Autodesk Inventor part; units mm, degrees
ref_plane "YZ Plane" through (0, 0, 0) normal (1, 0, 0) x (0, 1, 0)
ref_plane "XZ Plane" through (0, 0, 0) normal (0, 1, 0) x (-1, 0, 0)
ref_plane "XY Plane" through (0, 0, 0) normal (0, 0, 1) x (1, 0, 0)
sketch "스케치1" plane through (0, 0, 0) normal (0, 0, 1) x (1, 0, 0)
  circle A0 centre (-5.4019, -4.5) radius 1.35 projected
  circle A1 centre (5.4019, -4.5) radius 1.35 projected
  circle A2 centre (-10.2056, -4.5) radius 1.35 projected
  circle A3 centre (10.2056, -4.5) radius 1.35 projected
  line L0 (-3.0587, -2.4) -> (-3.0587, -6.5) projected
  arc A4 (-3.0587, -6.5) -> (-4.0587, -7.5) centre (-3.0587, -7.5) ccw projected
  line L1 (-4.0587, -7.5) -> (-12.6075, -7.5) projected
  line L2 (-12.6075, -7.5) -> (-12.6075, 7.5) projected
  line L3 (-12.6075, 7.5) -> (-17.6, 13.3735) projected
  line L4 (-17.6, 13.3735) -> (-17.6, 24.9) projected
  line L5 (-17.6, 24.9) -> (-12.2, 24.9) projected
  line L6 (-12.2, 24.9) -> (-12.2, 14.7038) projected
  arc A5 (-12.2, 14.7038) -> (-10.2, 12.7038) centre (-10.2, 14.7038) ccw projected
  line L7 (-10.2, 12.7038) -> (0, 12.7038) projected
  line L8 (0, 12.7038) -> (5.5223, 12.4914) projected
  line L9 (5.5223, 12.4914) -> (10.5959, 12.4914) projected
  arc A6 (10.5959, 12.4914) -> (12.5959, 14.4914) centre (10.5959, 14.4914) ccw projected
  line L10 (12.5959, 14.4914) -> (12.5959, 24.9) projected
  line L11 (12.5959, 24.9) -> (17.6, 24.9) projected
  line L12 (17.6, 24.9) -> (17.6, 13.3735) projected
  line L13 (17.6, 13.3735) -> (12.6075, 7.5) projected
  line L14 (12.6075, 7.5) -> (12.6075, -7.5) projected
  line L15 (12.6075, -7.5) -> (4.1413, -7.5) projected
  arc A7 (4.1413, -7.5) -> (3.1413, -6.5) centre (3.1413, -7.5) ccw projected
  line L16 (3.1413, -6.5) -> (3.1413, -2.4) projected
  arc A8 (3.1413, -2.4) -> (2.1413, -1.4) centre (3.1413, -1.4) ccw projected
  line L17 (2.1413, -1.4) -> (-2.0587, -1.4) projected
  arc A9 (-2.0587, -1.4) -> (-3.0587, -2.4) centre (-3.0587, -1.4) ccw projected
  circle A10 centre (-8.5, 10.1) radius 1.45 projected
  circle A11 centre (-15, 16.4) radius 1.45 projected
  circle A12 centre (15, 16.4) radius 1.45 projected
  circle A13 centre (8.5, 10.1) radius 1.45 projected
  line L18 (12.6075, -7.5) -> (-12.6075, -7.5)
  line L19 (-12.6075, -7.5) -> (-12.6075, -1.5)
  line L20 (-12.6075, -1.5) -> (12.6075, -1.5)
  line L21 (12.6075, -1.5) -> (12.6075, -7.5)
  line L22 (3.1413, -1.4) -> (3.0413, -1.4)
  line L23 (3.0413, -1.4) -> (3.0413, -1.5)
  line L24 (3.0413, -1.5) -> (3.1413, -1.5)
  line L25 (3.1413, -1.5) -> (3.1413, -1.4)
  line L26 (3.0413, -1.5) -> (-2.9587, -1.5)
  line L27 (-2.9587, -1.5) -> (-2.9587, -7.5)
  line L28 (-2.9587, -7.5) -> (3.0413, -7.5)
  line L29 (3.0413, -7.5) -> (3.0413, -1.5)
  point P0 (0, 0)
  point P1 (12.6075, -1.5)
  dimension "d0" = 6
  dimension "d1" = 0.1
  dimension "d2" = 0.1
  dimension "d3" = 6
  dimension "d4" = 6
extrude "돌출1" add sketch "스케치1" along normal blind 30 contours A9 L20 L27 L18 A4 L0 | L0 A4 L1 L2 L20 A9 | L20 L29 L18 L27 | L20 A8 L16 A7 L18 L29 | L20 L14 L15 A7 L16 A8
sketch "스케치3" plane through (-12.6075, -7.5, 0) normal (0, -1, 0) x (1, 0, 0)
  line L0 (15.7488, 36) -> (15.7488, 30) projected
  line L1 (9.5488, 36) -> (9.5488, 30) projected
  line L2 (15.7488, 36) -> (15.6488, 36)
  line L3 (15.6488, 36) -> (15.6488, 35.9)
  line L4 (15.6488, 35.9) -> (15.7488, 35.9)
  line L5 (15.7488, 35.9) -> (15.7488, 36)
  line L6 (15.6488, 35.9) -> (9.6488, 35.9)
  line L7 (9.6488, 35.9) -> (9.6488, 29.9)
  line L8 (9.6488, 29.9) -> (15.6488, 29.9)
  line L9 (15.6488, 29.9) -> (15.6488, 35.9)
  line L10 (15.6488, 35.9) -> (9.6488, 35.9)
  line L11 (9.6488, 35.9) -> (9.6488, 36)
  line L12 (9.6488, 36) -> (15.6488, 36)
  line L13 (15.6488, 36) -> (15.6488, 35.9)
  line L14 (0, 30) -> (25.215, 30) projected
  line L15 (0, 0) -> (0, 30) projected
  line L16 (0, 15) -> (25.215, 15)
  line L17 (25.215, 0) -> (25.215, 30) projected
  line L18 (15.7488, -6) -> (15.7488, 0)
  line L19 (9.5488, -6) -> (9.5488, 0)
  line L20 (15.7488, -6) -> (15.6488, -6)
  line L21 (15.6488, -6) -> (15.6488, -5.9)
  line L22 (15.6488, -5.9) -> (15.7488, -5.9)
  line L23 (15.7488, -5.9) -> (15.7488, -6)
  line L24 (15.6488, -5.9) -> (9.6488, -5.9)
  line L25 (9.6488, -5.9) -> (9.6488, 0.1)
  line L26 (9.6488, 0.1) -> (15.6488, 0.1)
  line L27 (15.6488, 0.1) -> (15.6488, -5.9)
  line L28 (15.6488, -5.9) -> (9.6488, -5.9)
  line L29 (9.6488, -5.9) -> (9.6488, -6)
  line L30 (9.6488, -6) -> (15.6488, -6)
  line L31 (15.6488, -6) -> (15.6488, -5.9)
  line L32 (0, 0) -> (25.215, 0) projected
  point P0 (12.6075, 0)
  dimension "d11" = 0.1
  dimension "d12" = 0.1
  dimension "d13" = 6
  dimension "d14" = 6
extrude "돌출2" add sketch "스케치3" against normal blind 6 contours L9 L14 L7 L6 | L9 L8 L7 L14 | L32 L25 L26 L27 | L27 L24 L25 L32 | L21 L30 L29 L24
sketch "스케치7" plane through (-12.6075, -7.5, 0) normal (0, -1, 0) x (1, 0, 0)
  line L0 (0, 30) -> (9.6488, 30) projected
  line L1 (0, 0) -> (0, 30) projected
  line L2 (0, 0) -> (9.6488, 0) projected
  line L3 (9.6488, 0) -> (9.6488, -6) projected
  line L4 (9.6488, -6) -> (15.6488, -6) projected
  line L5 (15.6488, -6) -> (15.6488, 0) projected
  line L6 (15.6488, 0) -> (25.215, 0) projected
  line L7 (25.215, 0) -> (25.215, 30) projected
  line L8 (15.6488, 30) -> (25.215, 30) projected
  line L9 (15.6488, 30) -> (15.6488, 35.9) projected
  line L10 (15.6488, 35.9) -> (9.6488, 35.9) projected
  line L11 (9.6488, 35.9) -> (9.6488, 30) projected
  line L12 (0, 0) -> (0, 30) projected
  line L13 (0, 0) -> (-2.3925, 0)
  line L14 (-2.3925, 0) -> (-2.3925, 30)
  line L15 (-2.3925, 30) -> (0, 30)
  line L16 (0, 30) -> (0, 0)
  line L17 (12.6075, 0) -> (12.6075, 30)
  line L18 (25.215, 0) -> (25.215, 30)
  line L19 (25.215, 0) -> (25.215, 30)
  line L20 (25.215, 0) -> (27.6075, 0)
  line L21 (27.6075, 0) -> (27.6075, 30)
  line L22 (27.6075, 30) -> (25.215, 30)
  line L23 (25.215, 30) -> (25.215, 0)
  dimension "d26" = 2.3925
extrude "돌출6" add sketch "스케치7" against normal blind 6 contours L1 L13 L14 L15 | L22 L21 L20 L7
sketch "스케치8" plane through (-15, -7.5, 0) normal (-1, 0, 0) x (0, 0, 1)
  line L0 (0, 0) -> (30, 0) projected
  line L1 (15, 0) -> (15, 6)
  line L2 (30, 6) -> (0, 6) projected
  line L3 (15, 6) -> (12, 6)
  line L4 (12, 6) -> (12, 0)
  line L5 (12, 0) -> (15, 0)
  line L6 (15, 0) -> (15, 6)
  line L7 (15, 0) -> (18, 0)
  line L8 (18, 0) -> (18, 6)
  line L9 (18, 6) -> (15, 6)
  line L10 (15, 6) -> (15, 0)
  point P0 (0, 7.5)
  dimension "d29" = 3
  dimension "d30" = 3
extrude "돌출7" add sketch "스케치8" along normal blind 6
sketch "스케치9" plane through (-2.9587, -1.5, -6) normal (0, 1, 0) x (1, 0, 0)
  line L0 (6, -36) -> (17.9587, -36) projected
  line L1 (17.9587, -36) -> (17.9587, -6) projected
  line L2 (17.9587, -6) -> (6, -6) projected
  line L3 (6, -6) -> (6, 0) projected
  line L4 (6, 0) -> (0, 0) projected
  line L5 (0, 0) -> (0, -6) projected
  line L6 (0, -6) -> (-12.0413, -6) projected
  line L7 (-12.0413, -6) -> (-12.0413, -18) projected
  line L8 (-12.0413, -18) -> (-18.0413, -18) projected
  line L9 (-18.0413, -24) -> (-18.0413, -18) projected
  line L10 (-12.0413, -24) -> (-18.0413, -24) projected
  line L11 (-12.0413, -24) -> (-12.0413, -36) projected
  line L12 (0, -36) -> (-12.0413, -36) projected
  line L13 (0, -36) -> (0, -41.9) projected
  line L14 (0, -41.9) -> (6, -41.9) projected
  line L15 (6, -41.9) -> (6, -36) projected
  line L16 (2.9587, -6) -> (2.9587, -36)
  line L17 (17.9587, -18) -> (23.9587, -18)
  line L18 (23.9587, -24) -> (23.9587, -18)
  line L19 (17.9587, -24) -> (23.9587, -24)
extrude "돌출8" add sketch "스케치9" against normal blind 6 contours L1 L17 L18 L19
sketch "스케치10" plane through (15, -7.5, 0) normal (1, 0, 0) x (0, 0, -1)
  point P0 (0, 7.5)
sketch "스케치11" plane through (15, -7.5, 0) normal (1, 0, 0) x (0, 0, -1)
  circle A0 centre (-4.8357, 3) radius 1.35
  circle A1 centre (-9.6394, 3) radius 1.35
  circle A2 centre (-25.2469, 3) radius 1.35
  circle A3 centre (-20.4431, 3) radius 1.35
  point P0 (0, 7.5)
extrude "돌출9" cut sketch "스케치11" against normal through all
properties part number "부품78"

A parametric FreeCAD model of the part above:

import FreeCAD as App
import Part
import Sketcher

V = App.Vector


def add_polygon(sketch, points):
    """Adds a closed chain of lines whose ends are joined by coincident constraints."""
    first, n = sketch.GeometryCount, len(points)
    for a, b in zip(points, points[1:] + points[:1]):
        sketch.addGeometry(Part.LineSegment(App.Vector(*a, 0), App.Vector(*b, 0)), False)
    for i in range(n):
        sketch.addConstraint(Sketcher.Constraint("Coincident", first + i, 2, first + (i + 1) % n, 1))

doc = App.newDocument("Part")
body = doc.addObject("PartDesign::Body", "Body")

# Sketch on XY plane
sketch1 = doc.addObject("Sketcher::SketchObject", "Sketch")
body.addObject(sketch1)
sketch1.AttachmentSupport = (doc.XY_Plane, [""])
sketch1.MapMode = "FlatFace"
add_polygon(sketch1, [(-12.6, -1.5), (-12.6, -7.5), (12.6, -7.5), (12.6, -1.5)])  # lines 0-3
sketch1.addGeometry(Part.Circle(V(-5.4, -4.5, 0), V(0, 0, 1), 1.4), False)  # 4
sketch1.addGeometry(Part.Circle(V(-10.2, -4.5, 0), V(0, 0, 1), 1.4), False)  # 5
sketch1.addGeometry(Part.Circle(V(10.2, -4.5, 0), V(0, 0, 1), 1.4), False)  # 6
sketch1.addGeometry(Part.Circle(V(5.4, -4.5, 0), V(0, 0, 1), 1.4), False)  # 7
sketch1.addConstraint(Sketcher.Constraint("Vertical", 0))
sketch1.addConstraint(Sketcher.Constraint("Horizontal", 1))
sketch1.addConstraint(Sketcher.Constraint("Vertical", 2))
sketch1.addConstraint(Sketcher.Constraint("Horizontal", 3))
sketch1.addConstraint(Sketcher.Constraint("Equal", 4, 5))
sketch1.addConstraint(Sketcher.Constraint("Equal", 5, 6))
sketch1.addConstraint(Sketcher.Constraint("Equal", 6, 7))
sketch1.addConstraint(Sketcher.Constraint("Symmetric", 5, 3, 6, 3, -2))
sketch1.addConstraint(Sketcher.Constraint("Symmetric", 4, 3, 7, 3, -2))
sketch1.addConstraint(Sketcher.Constraint("Horizontal", 4, 3, 5, 3))
sketch1.addConstraint(Sketcher.Constraint("DistanceY", 0, 2, 0, 1, 6.0))
sketch1.addConstraint(Sketcher.Constraint("Diameter", 4, 2.7))
sketch1.addConstraint(Sketcher.Constraint("DistanceY", 0, 2, 5, 3, 3.0))
sketch1.addConstraint(Sketcher.Constraint("DistanceY", 4, 3, -1, 1, 4.5))
sketch1.addConstraint(Sketcher.Constraint("DistanceX", 1, 1, 1, 2, 25.215))
sketch1.addConstraint(Sketcher.Constraint("DistanceX", 4, 3, -1, 1, 5.402))
sketch1.addConstraint(Sketcher.Constraint("DistanceX", 0, 2, 5, 3, 2.402))
sketch1.addConstraint(Sketcher.Constraint("DistanceX", 0, 2, 6, 3, 22.813))
pad1 = doc.addObject("PartDesign::Pad", "Pad")
body.addObject(pad1)
pad1.Profile = sketch1
pad1.Length = 30

# Sketch on XZ plane
sketch2 = doc.addObject("Sketcher::SketchObject", "Sketch001")
body.addObject(sketch2)
sketch2.AttachmentSupport = (doc.XZ_Plane, [""])
sketch2.MapMode = "FlatFace"
sketch2.AttachmentOffset = App.Placement(V(0, 0, 7.5), App.Rotation())
add_polygon(sketch2, [(3, 36), (-3, 36), (-3, 30), (3, 30)])  # lines 0-3
add_polygon(sketch2, [(-3, 0), (-3, -6), (3, -6), (3, 0)])  # lines 4-7
sketch2.addConstraint(Sketcher.Constraint("Horizontal", 0))
sketch2.addConstraint(Sketcher.Constraint("Vertical", 1))
sketch2.addConstraint(Sketcher.Constraint("Horizontal", 2))
sketch2.addConstraint(Sketcher.Constraint("Vertical", 3))
sketch2.addConstraint(Sketcher.Constraint("Vertical", 4))
sketch2.addConstraint(Sketcher.Constraint("Horizontal", 5))
sketch2.addConstraint(Sketcher.Constraint("Vertical", 6))
sketch2.addConstraint(Sketcher.Constraint("Horizontal", 7))
sketch2.addConstraint(Sketcher.Constraint("Vertical", 1, 2, 4, 2))
sketch2.addConstraint(Sketcher.Constraint("Vertical", 3, 2, 5, 2))
sketch2.addConstraint(Sketcher.Constraint("Equal", 7, 1))
sketch2.addConstraint(Sketcher.Constraint("DistanceX", 0, 2, 0, 1, 6.0))
sketch2.addConstraint(Sketcher.Constraint("DistanceY", 4, 2, -1, 1, 6.0))
sketch2.addConstraint(Sketcher.Constraint("DistanceY", -1, 1, 6, 2, 0.1))
sketch2.addConstraint(Sketcher.Constraint("DistanceY", -1, 1, 0, 2, 35.9))
sketch2.addConstraint(Sketcher.Constraint("DistanceX", 0, 2, -1, 1, 2.9587))
pad2 = doc.addObject("PartDesign::Pad", "Pad001")
body.addObject(pad2)
pad2.Profile = sketch2
pad2.Length = 6
pad2.Reversed = True

# Sketch on XZ plane
sketch3 = doc.addObject("Sketcher::SketchObject", "Sketch002")
body.addObject(sketch3)
sketch3.AttachmentSupport = (doc.XZ_Plane, [""])
sketch3.MapMode = "FlatFace"
sketch3.AttachmentOffset = App.Placement(V(0, 0, 7.5), App.Rotation())
add_polygon(sketch3, [(-12.6, 0), (-12.6, 30), (-15, 30), (-15, 0)])  # lines 0-3
add_polygon(sketch3, [(15, 30), (12.6, 30), (12.6, 0), (15, 0)])  # lines 4-7
sketch3.addConstraint(Sketcher.Constraint("Vertical", 0))
sketch3.addConstraint(Sketcher.Constraint("Horizontal", 1))
sketch3.addConstraint(Sketcher.Constraint("Vertical", 2))
sketch3.addConstraint(Sketcher.Constraint("Horizontal", 3))
sketch3.addConstraint(Sketcher.Constraint("Horizontal", 4))
sketch3.addConstraint(Sketcher.Constraint("Vertical", 5))
sketch3.addConstraint(Sketcher.Constraint("Horizontal", 6))
sketch3.addConstraint(Sketcher.Constraint("Vertical", 7))
sketch3.addConstraint(Sketcher.Constraint("Symmetric", 3, 2, 5, 2, -1, 1))
sketch3.addConstraint(Sketcher.Constraint("Symmetric", 2, 2, 6, 2, -2))
sketch3.addConstraint(Sketcher.Constraint("Horizontal", 1, 2, 4, 2))
sketch3.addConstraint(Sketcher.Constraint("DistanceY", 0, 1, 0, 2, 30.0))
sketch3.addConstraint(Sketcher.Constraint("DistanceX", 1, 2, 1, 1, 2.3925))
sketch3.addConstraint(Sketcher.Constraint("DistanceX", 1, 2, -1, 1, 15.0))
pad3 = doc.addObject("PartDesign::Pad", "Pad002")
body.addObject(pad3)
pad3.Profile = sketch3
pad3.Length = 6
pad3.Reversed = True

# Sketch on YZ plane
sketch4 = doc.addObject("Sketcher::SketchObject", "Sketch003")
body.addObject(sketch4)
sketch4.AttachmentSupport = (doc.YZ_Plane, [""])
sketch4.MapMode = "FlatFace"
sketch4.AttachmentOffset = App.Placement(V(0, 0, -15), App.Rotation())
add_polygon(sketch4, [(-2, 12), (-8, 12), (-8, 18), (-2, 18)])  # lines 0-3
sketch4.addConstraint(Sketcher.Constraint("Horizontal", 0))
sketch4.addConstraint(Sketcher.Constraint("Vertical", 1))
sketch4.addConstraint(Sketcher.Constraint("Horizontal", 2))
sketch4.addConstraint(Sketcher.Constraint("Vertical", 3))
sketch4.addConstraint(Sketcher.Constraint("Equal", 2, 1))
sketch4.addConstraint(Sketcher.Constraint("DistanceX", 0, 2, 0, 1, 6.0))
sketch4.addConstraint(Sketcher.Constraint("DistanceY", -1, 1, 0, 2, 12.0))
sketch4.addConstraint(Sketcher.Constraint("DistanceX", 0, 2, -1, 1, 7.5))
pad4 = doc.addObject("PartDesign::Pad", "Pad003")
body.addObject(pad4)
pad4.Profile = sketch4
pad4.Length = 6
pad4.Reversed = True

# Sketch on XZ plane
sketch5 = doc.addObject("Sketcher::SketchObject", "Sketch004")
body.addObject(sketch5)
sketch5.AttachmentSupport = (doc.XZ_Plane, [""])
sketch5.MapMode = "FlatFace"
sketch5.AttachmentOffset = App.Placement(V(0, 0, 1.5), App.Rotation())
add_polygon(sketch5, [(15, 12), (15, 18), (21, 18), (21, 12)])  # lines 0-3
sketch5.addConstraint(Sketcher.Constraint("Vertical", 0))
sketch5.addConstraint(Sketcher.Constraint("Horizontal", 1))
sketch5.addConstraint(Sketcher.Constraint("Vertical", 2))
sketch5.addConstraint(Sketcher.Constraint("Horizontal", 3))
sketch5.addConstraint(Sketcher.Constraint("Equal", 3, 0))
sketch5.addConstraint(Sketcher.Constraint("DistanceX", 1, 1, 1, 2, 6.0))
sketch5.addConstraint(Sketcher.Constraint("DistanceX", -1, 1, 0, 2, 15.0))
sketch5.addConstraint(Sketcher.Constraint("DistanceY", -1, 1, 0, 2, 18.0))
pad5 = doc.addObject("PartDesign::Pad", "Pad004")
body.addObject(pad5)
pad5.Profile = sketch5
pad5.Length = 6

# Sketch on YZ plane
sketch6 = doc.addObject("Sketcher::SketchObject", "Sketch005")
body.addObject(sketch6)
sketch6.AttachmentSupport = (doc.YZ_Plane, [""])
sketch6.MapMode = "FlatFace"
sketch6.AttachmentOffset = App.Placement(V(0, 0, 15), App.Rotation())
sketch6.addGeometry(Part.Circle(V(-4.5, 4.8, 0), V(0, 0, 1), 1.4), False)
sketch6.addGeometry(Part.Circle(V(-4.5, 9.6, 0), V(0, 0, 1), 1.4), False)
sketch6.addGeometry(Part.Circle(V(-4.5, 25.2, 0), V(0, 0, 1), 1.4), False)
sketch6.addGeometry(Part.Circle(V(-4.5, 20.4, 0), V(0, 0, 1), 1.4), False)
sketch6.addConstraint(Sketcher.Constraint("Equal", 0, 1))
sketch6.addConstraint(Sketcher.Constraint("Equal", 1, 2))
sketch6.addConstraint(Sketcher.Constraint("Equal", 2, 3))
sketch6.addConstraint(Sketcher.Constraint("Vertical", 0, 3, 1, 3))
sketch6.addConstraint(Sketcher.Constraint("Vertical", 1, 3, 2, 3))
sketch6.addConstraint(Sketcher.Constraint("Vertical", 2, 3, 3, 3))
sketch6.addConstraint(Sketcher.Constraint("Diameter", 0, 2.7))
sketch6.addConstraint(Sketcher.Constraint("DistanceX", 0, 3, -1, 1, 4.5))
sketch6.addConstraint(Sketcher.Constraint("DistanceY", -1, 1, 2, 3, 25.247))
sketch6.addConstraint(Sketcher.Constraint("DistanceY", -1, 1, 3, 3, 20.443))
sketch6.addConstraint(Sketcher.Constraint("DistanceY", -1, 1, 0, 3, 4.8357))
sketch6.addConstraint(Sketcher.Constraint("DistanceY", -1, 1, 1, 3, 9.6394))
pocket1 = doc.addObject("PartDesign::Pocket", "Pocket")
body.addObject(pocket1)
pocket1.Profile = sketch6
pocket1.Type = "ThroughAll"

doc.recompute()
